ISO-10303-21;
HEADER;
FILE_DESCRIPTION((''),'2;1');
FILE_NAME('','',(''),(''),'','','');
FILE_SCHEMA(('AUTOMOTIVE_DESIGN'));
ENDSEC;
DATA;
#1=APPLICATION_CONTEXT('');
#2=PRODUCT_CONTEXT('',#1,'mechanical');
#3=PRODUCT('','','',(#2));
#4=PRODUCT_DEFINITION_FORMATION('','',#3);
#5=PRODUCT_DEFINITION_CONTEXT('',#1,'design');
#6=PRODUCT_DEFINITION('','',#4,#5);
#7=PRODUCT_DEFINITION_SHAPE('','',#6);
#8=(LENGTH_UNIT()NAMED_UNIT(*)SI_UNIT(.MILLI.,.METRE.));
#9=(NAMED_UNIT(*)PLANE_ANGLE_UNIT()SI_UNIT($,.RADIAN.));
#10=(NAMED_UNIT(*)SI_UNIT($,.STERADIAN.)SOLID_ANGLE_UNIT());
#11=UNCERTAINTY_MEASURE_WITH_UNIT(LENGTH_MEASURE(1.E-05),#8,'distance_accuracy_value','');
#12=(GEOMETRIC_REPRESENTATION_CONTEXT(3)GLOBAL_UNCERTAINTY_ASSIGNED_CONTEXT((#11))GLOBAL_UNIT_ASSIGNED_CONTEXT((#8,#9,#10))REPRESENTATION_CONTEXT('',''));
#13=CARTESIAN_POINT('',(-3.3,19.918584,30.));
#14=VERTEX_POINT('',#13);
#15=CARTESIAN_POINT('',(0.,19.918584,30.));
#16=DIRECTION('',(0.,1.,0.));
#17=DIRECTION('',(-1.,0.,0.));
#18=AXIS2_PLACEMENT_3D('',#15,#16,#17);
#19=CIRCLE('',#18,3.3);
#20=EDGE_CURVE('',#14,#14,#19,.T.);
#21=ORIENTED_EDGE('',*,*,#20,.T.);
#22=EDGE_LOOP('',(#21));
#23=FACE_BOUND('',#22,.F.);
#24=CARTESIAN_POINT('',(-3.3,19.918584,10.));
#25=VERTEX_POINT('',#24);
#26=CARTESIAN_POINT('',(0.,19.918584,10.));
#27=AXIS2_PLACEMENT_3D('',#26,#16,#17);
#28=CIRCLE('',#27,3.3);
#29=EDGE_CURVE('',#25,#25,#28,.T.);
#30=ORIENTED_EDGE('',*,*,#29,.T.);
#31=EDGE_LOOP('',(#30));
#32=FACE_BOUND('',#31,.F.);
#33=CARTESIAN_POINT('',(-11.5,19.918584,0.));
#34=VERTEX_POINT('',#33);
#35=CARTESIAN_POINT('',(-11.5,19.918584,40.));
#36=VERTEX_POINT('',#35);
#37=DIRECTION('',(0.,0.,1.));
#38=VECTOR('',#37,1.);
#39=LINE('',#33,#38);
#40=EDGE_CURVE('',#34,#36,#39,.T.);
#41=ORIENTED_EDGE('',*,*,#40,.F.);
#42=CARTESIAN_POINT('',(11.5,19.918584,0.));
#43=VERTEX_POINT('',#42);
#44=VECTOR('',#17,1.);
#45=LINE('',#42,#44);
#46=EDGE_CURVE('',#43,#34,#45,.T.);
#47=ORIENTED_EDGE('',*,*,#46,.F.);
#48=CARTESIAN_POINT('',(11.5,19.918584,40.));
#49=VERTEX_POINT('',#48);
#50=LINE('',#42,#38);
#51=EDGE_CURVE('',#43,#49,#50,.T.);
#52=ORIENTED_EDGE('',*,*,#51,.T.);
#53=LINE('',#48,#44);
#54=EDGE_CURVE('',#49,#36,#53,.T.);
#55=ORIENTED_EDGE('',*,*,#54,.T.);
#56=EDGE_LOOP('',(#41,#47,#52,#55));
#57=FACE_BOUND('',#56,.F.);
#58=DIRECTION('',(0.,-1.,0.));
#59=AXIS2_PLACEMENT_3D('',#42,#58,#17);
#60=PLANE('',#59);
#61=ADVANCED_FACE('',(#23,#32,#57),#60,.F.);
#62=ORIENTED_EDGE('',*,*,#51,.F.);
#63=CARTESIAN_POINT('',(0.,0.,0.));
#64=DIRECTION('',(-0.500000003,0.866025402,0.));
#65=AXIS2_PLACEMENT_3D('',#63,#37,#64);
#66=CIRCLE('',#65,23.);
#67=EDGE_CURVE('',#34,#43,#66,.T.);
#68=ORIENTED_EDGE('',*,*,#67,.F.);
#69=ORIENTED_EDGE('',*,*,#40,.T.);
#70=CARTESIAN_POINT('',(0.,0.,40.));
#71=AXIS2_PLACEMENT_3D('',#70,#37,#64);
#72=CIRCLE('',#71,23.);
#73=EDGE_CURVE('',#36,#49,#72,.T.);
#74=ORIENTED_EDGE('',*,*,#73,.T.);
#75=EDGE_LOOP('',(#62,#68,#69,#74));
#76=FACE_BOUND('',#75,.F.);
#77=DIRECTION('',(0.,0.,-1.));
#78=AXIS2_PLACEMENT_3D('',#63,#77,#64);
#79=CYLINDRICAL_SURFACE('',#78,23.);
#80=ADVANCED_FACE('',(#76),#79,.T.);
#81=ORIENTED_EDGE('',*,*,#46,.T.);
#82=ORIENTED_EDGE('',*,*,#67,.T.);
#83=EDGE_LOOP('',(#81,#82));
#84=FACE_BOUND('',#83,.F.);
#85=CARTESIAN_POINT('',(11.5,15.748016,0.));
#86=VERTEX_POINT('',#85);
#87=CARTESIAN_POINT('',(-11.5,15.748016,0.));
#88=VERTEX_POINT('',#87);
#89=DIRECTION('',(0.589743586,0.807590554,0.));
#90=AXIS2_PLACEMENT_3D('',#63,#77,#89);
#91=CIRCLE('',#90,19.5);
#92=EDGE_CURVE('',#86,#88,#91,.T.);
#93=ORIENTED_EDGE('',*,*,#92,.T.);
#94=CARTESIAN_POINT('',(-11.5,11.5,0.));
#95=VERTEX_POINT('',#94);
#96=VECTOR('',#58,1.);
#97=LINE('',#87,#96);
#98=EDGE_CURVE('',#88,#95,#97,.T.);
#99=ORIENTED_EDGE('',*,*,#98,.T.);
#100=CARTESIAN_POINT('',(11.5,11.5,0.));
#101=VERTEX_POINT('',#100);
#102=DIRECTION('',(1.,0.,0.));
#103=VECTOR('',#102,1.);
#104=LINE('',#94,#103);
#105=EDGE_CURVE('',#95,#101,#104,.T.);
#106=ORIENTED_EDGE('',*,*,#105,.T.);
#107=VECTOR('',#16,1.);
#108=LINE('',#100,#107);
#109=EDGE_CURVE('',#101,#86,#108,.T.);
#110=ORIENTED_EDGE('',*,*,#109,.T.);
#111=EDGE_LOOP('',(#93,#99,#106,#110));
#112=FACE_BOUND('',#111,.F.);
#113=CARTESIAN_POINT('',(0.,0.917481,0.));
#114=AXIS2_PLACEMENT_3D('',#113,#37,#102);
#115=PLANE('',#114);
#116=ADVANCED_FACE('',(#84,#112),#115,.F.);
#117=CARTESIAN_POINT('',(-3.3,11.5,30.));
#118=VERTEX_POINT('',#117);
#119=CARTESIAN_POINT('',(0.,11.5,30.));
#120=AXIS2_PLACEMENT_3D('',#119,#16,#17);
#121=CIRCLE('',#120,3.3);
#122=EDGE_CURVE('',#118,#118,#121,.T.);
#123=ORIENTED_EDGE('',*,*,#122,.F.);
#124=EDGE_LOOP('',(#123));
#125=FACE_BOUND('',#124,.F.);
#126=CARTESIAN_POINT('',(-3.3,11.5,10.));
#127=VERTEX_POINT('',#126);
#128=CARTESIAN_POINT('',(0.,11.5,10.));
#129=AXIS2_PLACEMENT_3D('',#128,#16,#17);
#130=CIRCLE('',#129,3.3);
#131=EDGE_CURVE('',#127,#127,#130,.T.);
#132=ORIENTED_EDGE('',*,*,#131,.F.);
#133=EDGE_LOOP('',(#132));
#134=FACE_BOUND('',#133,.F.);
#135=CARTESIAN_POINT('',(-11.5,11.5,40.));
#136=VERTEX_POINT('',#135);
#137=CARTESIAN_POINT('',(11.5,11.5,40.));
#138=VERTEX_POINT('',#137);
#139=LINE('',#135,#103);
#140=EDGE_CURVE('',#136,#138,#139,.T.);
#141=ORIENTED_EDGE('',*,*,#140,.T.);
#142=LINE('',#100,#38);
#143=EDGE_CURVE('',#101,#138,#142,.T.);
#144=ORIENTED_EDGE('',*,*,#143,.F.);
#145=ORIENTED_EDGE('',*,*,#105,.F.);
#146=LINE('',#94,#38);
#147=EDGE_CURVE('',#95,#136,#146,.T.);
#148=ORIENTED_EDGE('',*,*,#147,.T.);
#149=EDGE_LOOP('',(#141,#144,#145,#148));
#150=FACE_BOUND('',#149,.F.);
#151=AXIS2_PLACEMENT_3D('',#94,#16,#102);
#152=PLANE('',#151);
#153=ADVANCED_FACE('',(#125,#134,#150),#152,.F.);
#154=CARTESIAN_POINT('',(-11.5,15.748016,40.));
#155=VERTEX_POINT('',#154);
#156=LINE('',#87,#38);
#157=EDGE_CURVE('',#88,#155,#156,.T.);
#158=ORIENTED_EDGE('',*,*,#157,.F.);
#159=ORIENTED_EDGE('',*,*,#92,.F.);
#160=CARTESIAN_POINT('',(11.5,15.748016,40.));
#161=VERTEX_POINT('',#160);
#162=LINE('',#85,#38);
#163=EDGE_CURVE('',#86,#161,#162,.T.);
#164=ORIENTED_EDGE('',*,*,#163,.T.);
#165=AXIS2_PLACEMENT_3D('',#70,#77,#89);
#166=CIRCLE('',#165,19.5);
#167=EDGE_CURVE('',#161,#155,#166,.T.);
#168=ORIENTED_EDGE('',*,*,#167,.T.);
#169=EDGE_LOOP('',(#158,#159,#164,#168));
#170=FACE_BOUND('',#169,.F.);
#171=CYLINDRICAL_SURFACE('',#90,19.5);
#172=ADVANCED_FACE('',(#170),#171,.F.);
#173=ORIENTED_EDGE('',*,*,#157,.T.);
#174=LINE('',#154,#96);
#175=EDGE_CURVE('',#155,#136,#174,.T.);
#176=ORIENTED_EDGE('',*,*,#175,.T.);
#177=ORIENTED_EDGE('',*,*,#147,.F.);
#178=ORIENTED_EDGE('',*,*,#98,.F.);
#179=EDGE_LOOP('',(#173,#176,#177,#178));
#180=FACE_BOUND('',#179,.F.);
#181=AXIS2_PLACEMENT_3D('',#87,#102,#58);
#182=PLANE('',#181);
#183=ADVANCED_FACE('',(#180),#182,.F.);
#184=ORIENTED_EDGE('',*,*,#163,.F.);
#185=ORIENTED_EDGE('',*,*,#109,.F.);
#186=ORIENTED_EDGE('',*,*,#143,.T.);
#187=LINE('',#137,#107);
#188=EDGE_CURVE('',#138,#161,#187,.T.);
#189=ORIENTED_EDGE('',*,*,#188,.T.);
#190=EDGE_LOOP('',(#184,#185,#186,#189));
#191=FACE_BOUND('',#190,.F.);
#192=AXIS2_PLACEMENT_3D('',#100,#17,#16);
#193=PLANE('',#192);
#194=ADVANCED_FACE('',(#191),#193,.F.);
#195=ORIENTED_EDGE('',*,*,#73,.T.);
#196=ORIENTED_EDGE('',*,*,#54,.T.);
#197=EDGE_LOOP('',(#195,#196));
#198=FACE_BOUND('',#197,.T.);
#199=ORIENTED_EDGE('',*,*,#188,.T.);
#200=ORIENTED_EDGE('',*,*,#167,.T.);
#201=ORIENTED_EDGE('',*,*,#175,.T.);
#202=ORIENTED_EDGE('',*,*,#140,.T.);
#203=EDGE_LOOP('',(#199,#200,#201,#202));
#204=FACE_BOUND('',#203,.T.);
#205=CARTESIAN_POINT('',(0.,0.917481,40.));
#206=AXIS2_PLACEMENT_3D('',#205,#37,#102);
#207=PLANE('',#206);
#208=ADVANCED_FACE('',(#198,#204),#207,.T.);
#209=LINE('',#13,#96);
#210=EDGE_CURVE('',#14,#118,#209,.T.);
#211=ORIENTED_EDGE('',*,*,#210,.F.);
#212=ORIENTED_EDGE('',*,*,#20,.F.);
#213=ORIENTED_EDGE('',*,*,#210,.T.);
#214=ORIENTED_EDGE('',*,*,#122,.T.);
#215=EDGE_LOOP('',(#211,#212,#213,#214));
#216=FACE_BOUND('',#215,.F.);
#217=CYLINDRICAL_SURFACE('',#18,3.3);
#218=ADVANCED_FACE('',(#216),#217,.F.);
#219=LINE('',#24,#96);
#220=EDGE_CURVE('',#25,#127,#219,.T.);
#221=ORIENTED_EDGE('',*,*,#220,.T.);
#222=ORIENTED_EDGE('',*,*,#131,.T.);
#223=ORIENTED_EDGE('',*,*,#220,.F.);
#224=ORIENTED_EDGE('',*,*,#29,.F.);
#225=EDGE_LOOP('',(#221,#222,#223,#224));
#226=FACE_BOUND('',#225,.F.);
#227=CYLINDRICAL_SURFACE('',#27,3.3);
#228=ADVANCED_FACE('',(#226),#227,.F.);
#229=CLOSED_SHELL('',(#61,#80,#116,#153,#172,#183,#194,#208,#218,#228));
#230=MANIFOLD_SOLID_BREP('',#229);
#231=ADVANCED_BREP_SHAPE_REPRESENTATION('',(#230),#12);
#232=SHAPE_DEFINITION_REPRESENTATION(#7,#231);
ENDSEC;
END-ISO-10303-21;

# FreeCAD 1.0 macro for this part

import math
import FreeCAD as App
import Part
import Sketcher
Q = App.Units.Quantity

doc = App.newDocument("Part")
params = doc.addObject("Spreadsheet::Sheet", "Params")
for row, (alias, value) in enumerate([
    ("sketch1_radius", "23 mm"),
    ("sketch1_radius2", "19.5 mm"),
    ("sketch1_width", "23 mm"),
    ("pad1_length", "40 mm"),
    ("sketch2_diameter", "6.6 mm"),
    ("pocket1_length", "8.418584 mm"),
], start=1):
    params.set(f"A{row}", alias)
    params.set(f"B{row}", "=" + value)
    params.setAlias(f"B{row}", alias)

body = doc.addObject("PartDesign::Body", "Body")

# Sketch on XY plane
sketch1 = body.newObject("Sketcher::SketchObject", "Sketch")
sketch1.AttachmentSupport = (doc.getObject("XY_Plane"), [""])
sketch1.MapMode = "FlatFace"
sketch1.addGeometry([
    Part.LineSegment(App.Vector(11.5, 19.918584, 0), App.Vector(-11.5, 19.918584, 0)),  # 0
    Part.ArcOfCircle(Part.Circle(App.Vector(0, 0, 0), App.Vector(0, 0, 1), 23), math.radians(120), math.radians(420)),  # 1
    Part.LineSegment(App.Vector(11.5, 11.5, 0), App.Vector(11.5, 15.748016, 0)),  # 2
    Part.ArcOfCircle(Part.Circle(App.Vector(0, 0, 0), App.Vector(0, 0, 1), 19.5), math.radians(126.138814), math.radians(413.861186)),  # 3
    Part.LineSegment(App.Vector(-11.5, 15.748016, 0), App.Vector(-11.5, 11.5, 0)),  # 4
    Part.LineSegment(App.Vector(-11.5, 11.5, 0), App.Vector(11.5, 11.5, 0)),  # 5
], False)
sketch1.addConstraint([
    Sketcher.Constraint("Coincident", 0, 1, 1, 2),
    Sketcher.Constraint("Coincident", 1, 1, 0, 2),
    Sketcher.Constraint("Coincident", 2, 2, 3, 2),
    Sketcher.Constraint("Coincident", 3, 1, 4, 1),
    Sketcher.Constraint("Coincident", 4, 2, 5, 1),
    Sketcher.Constraint("Coincident", 5, 2, 2, 1),
    Sketcher.Constraint("Horizontal", 0),
    Sketcher.Constraint("Vertical", 2),
    Sketcher.Constraint("Vertical", 4),
    Sketcher.Constraint("Horizontal", 5),
    Sketcher.Constraint("Coincident", 1, 3, -1, 1),
    Sketcher.Constraint("Coincident", 3, 3, -1, 1),
    Sketcher.Constraint("Horizontal", 2, 2, 3, 1),
    Sketcher.Constraint("Vertical", 0, 1, 2, 2),
    Sketcher.Constraint("Radius", 1, Q("23 mm")),
    Sketcher.Constraint("Radius", 3, Q("19.5 mm")),
    Sketcher.Constraint("DistanceX", 0, 2, 0, 1, Q("23 mm")),
    Sketcher.Constraint("DistanceY", -1, 1, 4, 2, Q("11.5 mm")),
])
sketch1.setExpression("Constraints[14]", "Params.sketch1_radius")
sketch1.setExpression("Constraints[15]", "Params.sketch1_radius2")
sketch1.setExpression("Constraints[16]", "Params.sketch1_width")
pad1 = body.newObject("PartDesign::Pad", "Pad")
pad1.Profile = sketch1
pad1.setExpression("Length", "Params.pad1_length")

# Sketch on XZ plane
sketch2 = body.newObject("Sketcher::SketchObject", "Sketch001")
sketch2.AttachmentSupport = (doc.getObject("XZ_Plane"), [""])
sketch2.MapMode = "FlatFace"
sketch2.AttachmentOffset = App.Placement(App.Vector(0, 0, -19.918584), App.Rotation())
sketch2.addGeometry([
    Part.Circle(App.Vector(0, 30, 0), App.Vector(0, 0, 1), 3.3),
    Part.Circle(App.Vector(0, 10, 0), App.Vector(0, 0, 1), 3.3),
], False)
sketch2.addConstraint([
    Sketcher.Constraint("Equal", 0, 1),
    Sketcher.Constraint("PointOnObject", 0, 3, -2),
    Sketcher.Constraint("PointOnObject", 1, 3, -2),
    Sketcher.Constraint("Diameter", 0, Q("6.6 mm")),
    Sketcher.Constraint("DistanceY", -1, 1, 0, 3, Q("30 mm")),
    Sketcher.Constraint("DistanceY", -1, 1, 1, 3, Q("10 mm")),
])
sketch2.setExpression("Constraints[3]", "Params.sketch2_diameter")
pocket1 = body.newObject("PartDesign::Pocket", "Pocket")
pocket1.Profile = sketch2
pocket1.setExpression("Length", "Params.pocket1_length")
pocket1.Reversed = True

doc.recompute()
